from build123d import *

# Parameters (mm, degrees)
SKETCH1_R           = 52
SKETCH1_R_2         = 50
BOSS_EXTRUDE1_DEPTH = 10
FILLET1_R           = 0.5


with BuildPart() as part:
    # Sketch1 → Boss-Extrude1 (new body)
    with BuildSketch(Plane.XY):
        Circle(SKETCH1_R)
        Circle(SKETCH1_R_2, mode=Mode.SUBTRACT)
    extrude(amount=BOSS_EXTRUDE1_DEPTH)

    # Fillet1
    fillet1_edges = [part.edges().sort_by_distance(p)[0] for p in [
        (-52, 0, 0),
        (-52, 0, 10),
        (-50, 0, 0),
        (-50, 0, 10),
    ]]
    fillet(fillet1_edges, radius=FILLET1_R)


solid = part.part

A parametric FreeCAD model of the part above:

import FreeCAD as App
import Part
import Sketcher
from FreeCAD import Vector


def edges_at(feature, points):
    """Names of the edges that pass closest to the given points."""
    edges = feature.Shape.Edges
    near = lambda p: min(range(len(edges)), key=lambda i: edges[i].distToShape(Part.Vertex(*p))[0])
    return sorted({f"Edge{near(p) + 1}" for p in points})

doc = App.newDocument("Part")
body = doc.addObject("PartDesign::Body", "Body")

# Sketch on XY plane
sketch1 = body.newObject("Sketcher::SketchObject", "Sketch")
sketch1.AttachmentSupport = (doc.getObject("XY_Plane"), [""])
sketch1.MapMode = "FlatFace"
sketch1.addGeometry(Part.Circle(Vector(0, 0, 0), Vector(0, 0, 1), 52), False)
sketch1.addGeometry(Part.Circle(Vector(0, 0, 0), Vector(0, 0, 1), 50), False)
sketch1.addConstraint(Sketcher.Constraint("Coincident", 0, 3, -1, 1))
sketch1.addConstraint(Sketcher.Constraint("Coincident", 1, 3, -1, 1))
sketch1.addConstraint(Sketcher.Constraint("Diameter", 0, 104.0))
sketch1.addConstraint(Sketcher.Constraint("Diameter", 1, 100.0))
pad1 = body.newObject("PartDesign::Pad", "Pad")
pad1.Profile = sketch1
pad1.Length = 10
doc.recompute()

fillet = body.newObject("PartDesign::Fillet", "Fillet")
fillet.Base = (pad1, edges_at(pad1, [
    (-52, 0, 0),
    (-52, 0, 10),
    (-50, 0, 0),
    (-50, 0, 10),
]))
fillet.Radius = 0.5

doc.recompute()
